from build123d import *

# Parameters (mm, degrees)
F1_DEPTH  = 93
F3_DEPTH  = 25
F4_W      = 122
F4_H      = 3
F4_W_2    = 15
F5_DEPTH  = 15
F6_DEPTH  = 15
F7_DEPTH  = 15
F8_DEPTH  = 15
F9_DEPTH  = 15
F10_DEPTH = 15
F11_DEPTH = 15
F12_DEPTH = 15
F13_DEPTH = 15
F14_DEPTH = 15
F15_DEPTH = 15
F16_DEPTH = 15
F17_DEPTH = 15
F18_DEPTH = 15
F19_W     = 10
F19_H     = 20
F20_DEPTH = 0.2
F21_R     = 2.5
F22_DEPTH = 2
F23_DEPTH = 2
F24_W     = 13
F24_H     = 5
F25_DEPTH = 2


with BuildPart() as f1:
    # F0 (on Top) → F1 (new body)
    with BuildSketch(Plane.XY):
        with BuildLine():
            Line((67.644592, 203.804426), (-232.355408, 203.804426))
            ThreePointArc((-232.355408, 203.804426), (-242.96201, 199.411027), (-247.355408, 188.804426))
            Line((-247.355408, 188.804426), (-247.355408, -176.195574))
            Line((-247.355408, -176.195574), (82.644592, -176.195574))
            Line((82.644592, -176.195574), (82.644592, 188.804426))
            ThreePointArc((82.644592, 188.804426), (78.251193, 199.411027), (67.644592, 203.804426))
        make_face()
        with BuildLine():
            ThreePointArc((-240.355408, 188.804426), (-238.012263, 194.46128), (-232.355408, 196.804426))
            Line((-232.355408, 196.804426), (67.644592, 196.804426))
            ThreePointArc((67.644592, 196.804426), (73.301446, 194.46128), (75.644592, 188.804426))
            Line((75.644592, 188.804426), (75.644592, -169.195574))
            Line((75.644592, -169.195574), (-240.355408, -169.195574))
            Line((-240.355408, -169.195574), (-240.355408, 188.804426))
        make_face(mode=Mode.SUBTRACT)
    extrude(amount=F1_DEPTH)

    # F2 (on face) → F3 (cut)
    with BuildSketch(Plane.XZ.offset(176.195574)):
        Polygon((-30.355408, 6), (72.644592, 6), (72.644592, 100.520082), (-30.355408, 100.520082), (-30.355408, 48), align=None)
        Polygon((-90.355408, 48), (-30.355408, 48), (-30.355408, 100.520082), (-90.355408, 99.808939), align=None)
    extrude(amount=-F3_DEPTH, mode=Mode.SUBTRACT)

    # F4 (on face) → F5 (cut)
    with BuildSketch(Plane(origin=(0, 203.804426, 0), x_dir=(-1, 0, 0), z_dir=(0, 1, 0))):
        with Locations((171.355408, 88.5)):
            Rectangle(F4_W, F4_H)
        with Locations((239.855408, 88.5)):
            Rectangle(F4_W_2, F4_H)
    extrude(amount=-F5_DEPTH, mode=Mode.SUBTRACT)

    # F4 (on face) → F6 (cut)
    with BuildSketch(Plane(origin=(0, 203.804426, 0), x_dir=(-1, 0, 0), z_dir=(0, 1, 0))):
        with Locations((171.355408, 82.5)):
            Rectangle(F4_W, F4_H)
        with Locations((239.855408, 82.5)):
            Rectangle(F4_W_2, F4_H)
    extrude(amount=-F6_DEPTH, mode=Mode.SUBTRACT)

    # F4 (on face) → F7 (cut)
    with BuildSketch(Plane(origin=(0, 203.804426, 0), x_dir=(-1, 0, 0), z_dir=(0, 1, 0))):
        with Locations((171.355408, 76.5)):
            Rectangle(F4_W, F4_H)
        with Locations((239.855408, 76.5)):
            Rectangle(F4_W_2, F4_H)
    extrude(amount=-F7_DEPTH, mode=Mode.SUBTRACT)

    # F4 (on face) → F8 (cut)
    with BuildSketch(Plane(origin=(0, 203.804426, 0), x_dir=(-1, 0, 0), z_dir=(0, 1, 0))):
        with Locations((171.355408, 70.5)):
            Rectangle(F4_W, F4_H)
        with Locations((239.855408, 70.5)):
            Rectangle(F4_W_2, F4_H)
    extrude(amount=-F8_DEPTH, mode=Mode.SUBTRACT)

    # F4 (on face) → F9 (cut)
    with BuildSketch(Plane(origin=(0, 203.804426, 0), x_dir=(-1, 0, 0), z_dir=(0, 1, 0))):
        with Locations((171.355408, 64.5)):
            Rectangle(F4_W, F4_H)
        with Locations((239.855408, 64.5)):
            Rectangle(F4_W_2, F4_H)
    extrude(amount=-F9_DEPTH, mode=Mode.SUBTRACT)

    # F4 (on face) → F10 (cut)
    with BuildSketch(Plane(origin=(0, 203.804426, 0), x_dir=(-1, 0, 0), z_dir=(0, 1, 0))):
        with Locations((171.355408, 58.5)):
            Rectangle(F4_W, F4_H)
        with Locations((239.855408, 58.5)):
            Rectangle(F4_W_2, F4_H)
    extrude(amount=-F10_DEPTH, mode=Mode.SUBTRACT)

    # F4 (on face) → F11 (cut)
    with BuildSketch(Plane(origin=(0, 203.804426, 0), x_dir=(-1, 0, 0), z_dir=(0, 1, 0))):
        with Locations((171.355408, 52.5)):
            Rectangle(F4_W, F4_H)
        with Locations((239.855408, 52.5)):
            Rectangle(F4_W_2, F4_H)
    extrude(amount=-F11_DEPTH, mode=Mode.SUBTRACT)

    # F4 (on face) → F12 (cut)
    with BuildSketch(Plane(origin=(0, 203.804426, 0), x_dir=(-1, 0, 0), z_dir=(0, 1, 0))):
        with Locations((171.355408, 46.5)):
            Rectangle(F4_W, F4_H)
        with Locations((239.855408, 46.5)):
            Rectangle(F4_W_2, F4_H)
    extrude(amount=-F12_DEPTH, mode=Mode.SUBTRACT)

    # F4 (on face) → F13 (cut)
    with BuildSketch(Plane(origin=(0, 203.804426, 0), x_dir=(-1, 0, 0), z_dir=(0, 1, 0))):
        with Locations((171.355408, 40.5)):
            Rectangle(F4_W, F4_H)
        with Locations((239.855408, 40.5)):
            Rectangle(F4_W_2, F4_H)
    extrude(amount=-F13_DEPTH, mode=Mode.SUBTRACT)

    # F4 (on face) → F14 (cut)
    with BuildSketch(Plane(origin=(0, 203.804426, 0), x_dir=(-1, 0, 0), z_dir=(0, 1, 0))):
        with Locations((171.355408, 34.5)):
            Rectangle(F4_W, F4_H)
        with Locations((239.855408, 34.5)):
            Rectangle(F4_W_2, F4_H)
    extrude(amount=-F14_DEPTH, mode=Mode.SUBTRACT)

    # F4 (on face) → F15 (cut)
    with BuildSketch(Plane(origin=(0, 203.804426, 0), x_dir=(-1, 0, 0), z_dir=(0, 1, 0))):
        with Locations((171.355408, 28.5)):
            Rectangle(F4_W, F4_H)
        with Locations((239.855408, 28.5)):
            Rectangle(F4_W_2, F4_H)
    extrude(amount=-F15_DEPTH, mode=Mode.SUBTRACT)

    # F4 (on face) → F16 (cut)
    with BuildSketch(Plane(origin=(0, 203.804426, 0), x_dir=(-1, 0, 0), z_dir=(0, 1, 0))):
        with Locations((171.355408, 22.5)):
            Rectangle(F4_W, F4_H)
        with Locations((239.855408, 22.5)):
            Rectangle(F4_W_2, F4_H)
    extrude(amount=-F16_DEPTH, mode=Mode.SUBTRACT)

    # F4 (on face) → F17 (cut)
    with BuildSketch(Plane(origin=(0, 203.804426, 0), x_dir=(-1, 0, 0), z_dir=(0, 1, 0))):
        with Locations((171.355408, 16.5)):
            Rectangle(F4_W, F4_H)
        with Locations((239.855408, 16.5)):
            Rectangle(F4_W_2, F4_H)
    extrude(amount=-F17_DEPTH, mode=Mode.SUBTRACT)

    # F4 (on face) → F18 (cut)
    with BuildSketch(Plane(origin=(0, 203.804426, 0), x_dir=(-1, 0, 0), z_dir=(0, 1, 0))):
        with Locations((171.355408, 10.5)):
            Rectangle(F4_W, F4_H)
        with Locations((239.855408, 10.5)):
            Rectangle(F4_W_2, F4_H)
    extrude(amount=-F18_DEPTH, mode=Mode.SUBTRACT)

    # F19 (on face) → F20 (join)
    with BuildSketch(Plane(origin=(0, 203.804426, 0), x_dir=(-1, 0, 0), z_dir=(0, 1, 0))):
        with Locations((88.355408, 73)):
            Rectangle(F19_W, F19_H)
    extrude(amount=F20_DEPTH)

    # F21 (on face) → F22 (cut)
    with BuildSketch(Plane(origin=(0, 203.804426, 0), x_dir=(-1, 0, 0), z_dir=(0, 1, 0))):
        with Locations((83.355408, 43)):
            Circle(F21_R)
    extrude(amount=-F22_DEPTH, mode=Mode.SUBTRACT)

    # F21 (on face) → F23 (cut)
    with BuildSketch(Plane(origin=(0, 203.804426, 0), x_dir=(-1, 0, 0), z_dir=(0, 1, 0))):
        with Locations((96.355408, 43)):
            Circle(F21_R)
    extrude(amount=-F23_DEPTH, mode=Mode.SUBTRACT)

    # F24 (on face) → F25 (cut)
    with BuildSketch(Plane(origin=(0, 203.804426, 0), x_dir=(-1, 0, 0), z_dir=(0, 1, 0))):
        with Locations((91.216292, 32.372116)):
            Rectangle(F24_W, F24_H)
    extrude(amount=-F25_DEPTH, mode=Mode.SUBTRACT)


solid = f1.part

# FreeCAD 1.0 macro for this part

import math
import FreeCAD as App
import Part
import Sketcher
from FreeCAD import Vector

doc = App.newDocument("Part")
body = doc.addObject("PartDesign::Body", "Body")

sketch1 = body.newObject("Sketcher::SketchObject", "Sketch")
sketch1.AttachmentSupport = (doc.getObject("XY_Plane"), [""])
sketch1.MapMode = "FlatFace"
sketch1.addGeometry(Part.LineSegment(Vector(68, 204, 0), Vector(-232, 204, 0)), False)
sketch1.addGeometry(Part.ArcOfCircle(Part.Circle(Vector(-232, 189, 0), Vector(0, 0, 1), 15), math.radians(90), math.radians(180)), False)
sketch1.addGeometry(Part.LineSegment(Vector(-247, 189, 0), Vector(-247, -176, 0)), False)
sketch1.addGeometry(Part.LineSegment(Vector(-247, -176, 0), Vector(83, -176, 0)), False)
sketch1.addGeometry(Part.LineSegment(Vector(83, -176, 0), Vector(83, 189, 0)), False)
sketch1.addGeometry(Part.ArcOfCircle(Part.Circle(Vector(68, 189, 0), Vector(0, 0, 1), 15), math.radians(0), math.radians(90)), False)
sketch1.addGeometry(Part.LineSegment(Vector(-240, -169, 0), Vector(-240, 189, 0)), False)
sketch1.addGeometry(Part.ArcOfCircle(Part.Circle(Vector(-232, 189, 0), Vector(0, 0, 1), 8), math.radians(90), math.radians(180)), False)
sketch1.addGeometry(Part.LineSegment(Vector(-232, 197, 0), Vector(68, 197, 0)), False)
sketch1.addGeometry(Part.ArcOfCircle(Part.Circle(Vector(68, 189, 0), Vector(0, 0, 1), 8), math.radians(0), math.radians(90)), False)
sketch1.addGeometry(Part.LineSegment(Vector(76, 189, 0), Vector(76, -169, 0)), False)
sketch1.addGeometry(Part.LineSegment(Vector(76, -169, 0), Vector(-240, -169, 0)), False)
sketch1.addConstraint(Sketcher.Constraint("Tangent", 0, 2, 1, 1))
sketch1.addConstraint(Sketcher.Constraint("Tangent", 1, 2, 2, 1))
sketch1.addConstraint(Sketcher.Constraint("Coincident", 2, 2, 3, 1))
sketch1.addConstraint(Sketcher.Constraint("Coincident", 3, 2, 4, 1))
sketch1.addConstraint(Sketcher.Constraint("Tangent", 4, 2, 5, 1))
sketch1.addConstraint(Sketcher.Constraint("Tangent", 5, 2, 0, 1))
sketch1.addConstraint(Sketcher.Constraint("Tangent", 6, 2, 7, 2))
sketch1.addConstraint(Sketcher.Constraint("Tangent", 7, 1, 8, 1))
sketch1.addConstraint(Sketcher.Constraint("Tangent", 8, 2, 9, 2))
sketch1.addConstraint(Sketcher.Constraint("Tangent", 9, 1, 10, 1))
sketch1.addConstraint(Sketcher.Constraint("Coincident", 10, 2, 11, 1))
sketch1.addConstraint(Sketcher.Constraint("Coincident", 11, 2, 6, 1))
sketch1.addConstraint(Sketcher.Constraint("Horizontal", 0))
sketch1.addConstraint(Sketcher.Constraint("Vertical", 2))
sketch1.addConstraint(Sketcher.Constraint("Horizontal", 3))
sketch1.addConstraint(Sketcher.Constraint("Vertical", 4))
sketch1.addConstraint(Sketcher.Constraint("Vertical", 6))
sketch1.addConstraint(Sketcher.Constraint("Horizontal", 8))
sketch1.addConstraint(Sketcher.Constraint("Vertical", 10))
sketch1.addConstraint(Sketcher.Constraint("Horizontal", 11))
sketch1.addConstraint(Sketcher.Constraint("Coincident", 7, 3, 1, 3))
sketch1.addConstraint(Sketcher.Constraint("Coincident", 9, 3, 5, 3))
sketch1.addConstraint(Sketcher.Constraint("Equal", 1, 5))
sketch1.addConstraint(Sketcher.Constraint("Radius", 1, 15.000001))
sketch1.addConstraint(Sketcher.Constraint("Radius", 7, 7.999999))
sketch1.addConstraint(Sketcher.Constraint("DistanceX", 0, 2, 0, 1, 300.0))
sketch1.addConstraint(Sketcher.Constraint("DistanceY", 2, 2, 2, 1, 365.0))
sketch1.addConstraint(Sketcher.Constraint("DistanceY", 6, 1, 6, 2, 358.0))
sketch1.addConstraint(Sketcher.Constraint("DistanceX", -1, 1, 5, 3, 67.64459))
sketch1.addConstraint(Sketcher.Constraint("DistanceY", -1, 1, 1, 3, 188.804425))
pad1 = body.newObject("PartDesign::Pad", "Pad")
pad1.Profile = sketch1
pad1.Length = 93

sketch2 = body.newObject("Sketcher::SketchObject", "Sketch001")
sketch2.AttachmentSupport = (doc.getObject("XZ_Plane"), [""])
sketch2.MapMode = "FlatFace"
sketch2.AttachmentOffset = App.Placement(Vector(0, 0, 176.195574), App.Rotation())
sketch2.addGeometry(Part.LineSegment(Vector(-30, 6, 0), Vector(73, 6, 0)), False)
sketch2.addGeometry(Part.LineSegment(Vector(73, 6, 0), Vector(73, 101, 0)), False)
sketch2.addGeometry(Part.LineSegment(Vector(73, 101, 0), Vector(-30, 101, 0)), False)
sketch2.addGeometry(Part.LineSegment(Vector(-30, 101, 0), Vector(-90, 100, 0)), False)
sketch2.addGeometry(Part.LineSegment(Vector(-90, 100, 0), Vector(-90, 48, 0)), False)
sketch2.addGeometry(Part.LineSegment(Vector(-90, 48, 0), Vector(-30, 48, 0)), False)
sketch2.addGeometry(Part.LineSegment(Vector(-30, 48, 0), Vector(-30, 6, 0)), False)
sketch2.addConstraint(Sketcher.Constraint("Coincident", 0, 2, 1, 1))
sketch2.addConstraint(Sketcher.Constraint("Coincident", 1, 2, 2, 1))
sketch2.addConstraint(Sketcher.Constraint("Coincident", 2, 2, 3, 1))
sketch2.addConstraint(Sketcher.Constraint("Coincident", 3, 2, 4, 1))
sketch2.addConstraint(Sketcher.Constraint("Coincident", 4, 2, 5, 1))
sketch2.addConstraint(Sketcher.Constraint("Coincident", 5, 2, 6, 1))
sketch2.addConstraint(Sketcher.Constraint("Coincident", 6, 2, 0, 1))
sketch2.addConstraint(Sketcher.Constraint("Horizontal", 0))
sketch2.addConstraint(Sketcher.Constraint("Vertical", 1))
sketch2.addConstraint(Sketcher.Constraint("Horizontal", 2))
sketch2.addConstraint(Sketcher.Constraint("Vertical", 4))
sketch2.addConstraint(Sketcher.Constraint("Horizontal", 5))
sketch2.addConstraint(Sketcher.Constraint("Vertical", 6))
sketch2.addConstraint(Sketcher.Constraint("Vertical", 2, 2, 5, 2))
sketch2.addConstraint(Sketcher.Constraint("DistanceX", 0, 1, 0, 2, 103.0))
sketch2.addConstraint(Sketcher.Constraint("DistanceX", 5, 1, 5, 2, 60.0))
sketch2.addConstraint(Sketcher.Constraint("DistanceY", 6, 2, 6, 1, 42.0))
sketch2.addConstraint(Sketcher.Constraint("DistanceY", -1, 1, 0, 2, 6.0))
sketch2.addConstraint(Sketcher.Constraint("DistanceY", 4, 2, 4, 1, 51.808939))
sketch2.addConstraint(Sketcher.Constraint("DistanceY", 1, 1, 1, 2, 94.520082))
sketch2.addConstraint(Sketcher.Constraint("DistanceX", 2, 2, -1, 1, 30.355408))
pocket1 = body.newObject("PartDesign::Pocket", "Pocket")
pocket1.Profile = sketch2
pocket1.Length = 25

sketch3 = body.newObject("Sketcher::SketchObject", "Sketch002")
sketch3.AttachmentSupport = (doc.getObject("XZ_Plane"), [""])
sketch3.MapMode = "FlatFace"
sketch3.AttachmentOffset = App.Placement(Vector(0, 0, -203.804426), App.Rotation())
sketch3.addGeometry(Part.LineSegment(Vector(-110.4, 90, 0), Vector(-110.4, 87, 0)), False)
sketch3.addGeometry(Part.LineSegment(Vector(-110.4, 87, 0), Vector(-247.4, 87, 0)), False)
sketch3.addGeometry(Part.LineSegment(Vector(-247.4, 87, 0), Vector(-247.4, 90, 0)), False)
sketch3.addGeometry(Part.LineSegment(Vector(-247.4, 90, 0), Vector(-110.4, 90, 0)), False)
sketch3.addConstraint(Sketcher.Constraint("Coincident", 0, 2, 1, 1))
sketch3.addConstraint(Sketcher.Constraint("Coincident", 1, 2, 2, 1))
sketch3.addConstraint(Sketcher.Constraint("Coincident", 2, 2, 3, 1))
sketch3.addConstraint(Sketcher.Constraint("Coincident", 3, 2, 0, 1))
sketch3.addConstraint(Sketcher.Constraint("Vertical", 0))
sketch3.addConstraint(Sketcher.Constraint("Horizontal", 1))
sketch3.addConstraint(Sketcher.Constraint("Vertical", 2))
sketch3.addConstraint(Sketcher.Constraint("Horizontal", 3))
sketch3.addConstraint(Sketcher.Constraint("DistanceX", 1, 2, 1, 1, 137.0))
sketch3.addConstraint(Sketcher.Constraint("DistanceY", 0, 2, 0, 1, 3.0))
sketch3.addConstraint(Sketcher.Constraint("DistanceY", -1, 1, 0, 2, 87.0))
sketch3.addConstraint(Sketcher.Constraint("DistanceX", 1, 2, -1, 1, 247.355408))
pocket2 = body.newObject("PartDesign::Pocket", "Pocket001")
pocket2.Profile = sketch3
pocket2.Length = 15
pocket2.Reversed = True

sketch4 = body.newObject("Sketcher::SketchObject", "Sketch003")
sketch4.AttachmentSupport = (doc.getObject("XZ_Plane"), [""])
sketch4.MapMode = "FlatFace"
sketch4.AttachmentOffset = App.Placement(Vector(0, 0, -203.804426), App.Rotation())
sketch4.addGeometry(Part.LineSegment(Vector(-110.4, 84, 0), Vector(-110.4, 81, 0)), False)
sketch4.addGeometry(Part.LineSegment(Vector(-110.4, 81, 0), Vector(-247.4, 81, 0)), False)
sketch4.addGeometry(Part.LineSegment(Vector(-247.4, 81, 0), Vector(-247.4, 84, 0)), False)
sketch4.addGeometry(Part.LineSegment(Vector(-247.4, 84, 0), Vector(-110.4, 84, 0)), False)
sketch4.addConstraint(Sketcher.Constraint("Coincident", 0, 2, 1, 1))
sketch4.addConstraint(Sketcher.Constraint("Coincident", 1, 2, 2, 1))
sketch4.addConstraint(Sketcher.Constraint("Coincident", 2, 2, 3, 1))
sketch4.addConstraint(Sketcher.Constraint("Coincident", 3, 2, 0, 1))
sketch4.addConstraint(Sketcher.Constraint("Vertical", 0))
sketch4.addConstraint(Sketcher.Constraint("Horizontal", 1))
sketch4.addConstraint(Sketcher.Constraint("Vertical", 2))
sketch4.addConstraint(Sketcher.Constraint("Horizontal", 3))
sketch4.addConstraint(Sketcher.Constraint("DistanceX", 1, 2, 1, 1, 137.0))
sketch4.addConstraint(Sketcher.Constraint("DistanceY", 0, 2, 0, 1, 3.0))
sketch4.addConstraint(Sketcher.Constraint("DistanceY", -1, 1, 0, 2, 81.0))
sketch4.addConstraint(Sketcher.Constraint("DistanceX", 1, 2, -1, 1, 247.355408))
pocket3 = body.newObject("PartDesign::Pocket", "Pocket002")
pocket3.Profile = sketch4
pocket3.Length = 15
pocket3.Reversed = True

sketch5 = body.newObject("Sketcher::SketchObject", "Sketch004")
sketch5.AttachmentSupport = (doc.getObject("XZ_Plane"), [""])
sketch5.MapMode = "FlatFace"
sketch5.AttachmentOffset = App.Placement(Vector(0, 0, -203.804426), App.Rotation())
sketch5.addGeometry(Part.LineSegment(Vector(-110.4, 78, 0), Vector(-110.4, 75, 0)), False)
sketch5.addGeometry(Part.LineSegment(Vector(-110.4, 75, 0), Vector(-247.4, 75, 0)), False)
sketch5.addGeometry(Part.LineSegment(Vector(-247.4, 75, 0), Vector(-247.4, 78, 0)), False)
sketch5.addGeometry(Part.LineSegment(Vector(-247.4, 78, 0), Vector(-110.4, 78, 0)), False)
sketch5.addConstraint(Sketcher.Constraint("Coincident", 0, 2, 1, 1))
sketch5.addConstraint(Sketcher.Constraint("Coincident", 1, 2, 2, 1))
sketch5.addConstraint(Sketcher.Constraint("Coincident", 2, 2, 3, 1))
sketch5.addConstraint(Sketcher.Constraint("Coincident", 3, 2, 0, 1))
sketch5.addConstraint(Sketcher.Constraint("Vertical", 0))
sketch5.addConstraint(Sketcher.Constraint("Horizontal", 1))
sketch5.addConstraint(Sketcher.Constraint("Vertical", 2))
sketch5.addConstraint(Sketcher.Constraint("Horizontal", 3))
sketch5.addConstraint(Sketcher.Constraint("DistanceX", 1, 2, 1, 1, 137.0))
sketch5.addConstraint(Sketcher.Constraint("DistanceY", 0, 2, 0, 1, 3.0))
sketch5.addConstraint(Sketcher.Constraint("DistanceY", -1, 1, 0, 2, 75.0))
sketch5.addConstraint(Sketcher.Constraint("DistanceX", 1, 2, -1, 1, 247.355408))
pocket4 = body.newObject("PartDesign::Pocket", "Pocket003")
pocket4.Profile = sketch5
pocket4.Length = 15
pocket4.Reversed = True

sketch6 = body.newObject("Sketcher::SketchObject", "Sketch005")
sketch6.AttachmentSupport = (doc.getObject("XZ_Plane"), [""])
sketch6.MapMode = "FlatFace"
sketch6.AttachmentOffset = App.Placement(Vector(0, 0, -203.804426), App.Rotation())
sketch6.addGeometry(Part.LineSegment(Vector(-110.4, 72, 0), Vector(-110.4, 69, 0)), False)
sketch6.addGeometry(Part.LineSegment(Vector(-110.4, 69, 0), Vector(-247.4, 69, 0)), False)
sketch6.addGeometry(Part.LineSegment(Vector(-247.4, 69, 0), Vector(-247.4, 72, 0)), False)
sketch6.addGeometry(Part.LineSegment(Vector(-247.4, 72, 0), Vector(-110.4, 72, 0)), False)
sketch6.addConstraint(Sketcher.Constraint("Coincident", 0, 2, 1, 1))
sketch6.addConstraint(Sketcher.Constraint("Coincident", 1, 2, 2, 1))
sketch6.addConstraint(Sketcher.Constraint("Coincident", 2, 2, 3, 1))
sketch6.addConstraint(Sketcher.Constraint("Coincident", 3, 2, 0, 1))
sketch6.addConstraint(Sketcher.Constraint("Vertical", 0))
sketch6.addConstraint(Sketcher.Constraint("Horizontal", 1))
sketch6.addConstraint(Sketcher.Constraint("Vertical", 2))
sketch6.addConstraint(Sketcher.Constraint("Horizontal", 3))
sketch6.addConstraint(Sketcher.Constraint("DistanceX", 1, 2, 1, 1, 137.0))
sketch6.addConstraint(Sketcher.Constraint("DistanceY", 0, 2, 0, 1, 3.0))
sketch6.addConstraint(Sketcher.Constraint("DistanceY", -1, 1, 0, 2, 69.0))
sketch6.addConstraint(Sketcher.Constraint("DistanceX", 1, 2, -1, 1, 247.355408))
pocket5 = body.newObject("PartDesign::Pocket", "Pocket004")
pocket5.Profile = sketch6
pocket5.Length = 15
pocket5.Reversed = True

sketch7 = body.newObject("Sketcher::SketchObject", "Sketch006")
sketch7.AttachmentSupport = (doc.getObject("XZ_Plane"), [""])
sketch7.MapMode = "FlatFace"
sketch7.AttachmentOffset = App.Placement(Vector(0, 0, -203.804426), App.Rotation())
sketch7.addGeometry(Part.LineSegment(Vector(-110.4, 66, 0), Vector(-110.4, 63, 0)), False)
sketch7.addGeometry(Part.LineSegment(Vector(-110.4, 63, 0), Vector(-247.4, 63, 0)), False)
sketch7.addGeometry(Part.LineSegment(Vector(-247.4, 63, 0), Vector(-247.4, 66, 0)), False)
sketch7.addGeometry(Part.LineSegment(Vector(-247.4, 66, 0), Vector(-110.4, 66, 0)), False)
sketch7.addConstraint(Sketcher.Constraint("Coincident", 0, 2, 1, 1))
sketch7.addConstraint(Sketcher.Constraint("Coincident", 1, 2, 2, 1))
sketch7.addConstraint(Sketcher.Constraint("Coincident", 2, 2, 3, 1))
sketch7.addConstraint(Sketcher.Constraint("Coincident", 3, 2, 0, 1))
sketch7.addConstraint(Sketcher.Constraint("Vertical", 0))
sketch7.addConstraint(Sketcher.Constraint("Horizontal", 1))
sketch7.addConstraint(Sketcher.Constraint("Vertical", 2))
sketch7.addConstraint(Sketcher.Constraint("Horizontal", 3))
sketch7.addConstraint(Sketcher.Constraint("DistanceX", 1, 2, 1, 1, 137.0))
sketch7.addConstraint(Sketcher.Constraint("DistanceY", 0, 2, 0, 1, 3.0))
sketch7.addConstraint(Sketcher.Constraint("DistanceY", -1, 1, 0, 2, 63.0))
sketch7.addConstraint(Sketcher.Constraint("DistanceX", 1, 2, -1, 1, 247.355408))
pocket6 = body.newObject("PartDesign::Pocket", "Pocket005")
pocket6.Profile = sketch7
pocket6.Length = 15
pocket6.Reversed = True

sketch8 = body.newObject("Sketcher::SketchObject", "Sketch007")
sketch8.AttachmentSupport = (doc.getObject("XZ_Plane"), [""])
sketch8.MapMode = "FlatFace"
sketch8.AttachmentOffset = App.Placement(Vector(0, 0, -203.804426), App.Rotation())
sketch8.addGeometry(Part.LineSegment(Vector(-110.4, 60, 0), Vector(-110.4, 57, 0)), False)
sketch8.addGeometry(Part.LineSegment(Vector(-110.4, 57, 0), Vector(-247.4, 57, 0)), False)
sketch8.addGeometry(Part.LineSegment(Vector(-247.4, 57, 0), Vector(-247.4, 60, 0)), False)
sketch8.addGeometry(Part.LineSegment(Vector(-247.4, 60, 0), Vector(-110.4, 60, 0)), False)
sketch8.addConstraint(Sketcher.Constraint("Coincident", 0, 2, 1, 1))
sketch8.addConstraint(Sketcher.Constraint("Coincident", 1, 2, 2, 1))
sketch8.addConstraint(Sketcher.Constraint("Coincident", 2, 2, 3, 1))
sketch8.addConstraint(Sketcher.Constraint("Coincident", 3, 2, 0, 1))
sketch8.addConstraint(Sketcher.Constraint("Vertical", 0))
sketch8.addConstraint(Sketcher.Constraint("Horizontal", 1))
sketch8.addConstraint(Sketcher.Constraint("Vertical", 2))
sketch8.addConstraint(Sketcher.Constraint("Horizontal", 3))
sketch8.addConstraint(Sketcher.Constraint("DistanceX", 1, 2, 1, 1, 137.0))
sketch8.addConstraint(Sketcher.Constraint("DistanceY", 0, 2, 0, 1, 3.0))
sketch8.addConstraint(Sketcher.Constraint("DistanceY", -1, 1, 0, 2, 57.0))
sketch8.addConstraint(Sketcher.Constraint("DistanceX", 1, 2, -1, 1, 247.355408))
pocket7 = body.newObject("PartDesign::Pocket", "Pocket006")
pocket7.Profile = sketch8
pocket7.Length = 15
pocket7.Reversed = True

sketch9 = body.newObject("Sketcher::SketchObject", "Sketch008")
sketch9.AttachmentSupport = (doc.getObject("XZ_Plane"), [""])
sketch9.MapMode = "FlatFace"
sketch9.AttachmentOffset = App.Placement(Vector(0, 0, -203.804426), App.Rotation())
sketch9.addGeometry(Part.LineSegment(Vector(-110.4, 54, 0), Vector(-110.4, 51, 0)), False)
sketch9.addGeometry(Part.LineSegment(Vector(-110.4, 51, 0), Vector(-247.4, 51, 0)), False)
sketch9.addGeometry(Part.LineSegment(Vector(-247.4, 51, 0), Vector(-247.4, 54, 0)), False)
sketch9.addGeometry(Part.LineSegment(Vector(-247.4, 54, 0), Vector(-110.4, 54, 0)), False)
sketch9.addConstraint(Sketcher.Constraint("Coincident", 0, 2, 1, 1))
sketch9.addConstraint(Sketcher.Constraint("Coincident", 1, 2, 2, 1))
sketch9.addConstraint(Sketcher.Constraint("Coincident", 2, 2, 3, 1))
sketch9.addConstraint(Sketcher.Constraint("Coincident", 3, 2, 0, 1))
sketch9.addConstraint(Sketcher.Constraint("Vertical", 0))
sketch9.addConstraint(Sketcher.Constraint("Horizontal", 1))
sketch9.addConstraint(Sketcher.Constraint("Vertical", 2))
sketch9.addConstraint(Sketcher.Constraint("Horizontal", 3))
sketch9.addConstraint(Sketcher.Constraint("DistanceX", 1, 2, 1, 1, 137.0))
sketch9.addConstraint(Sketcher.Constraint("DistanceY", 0, 2, 0, 1, 3.0))
sketch9.addConstraint(Sketcher.Constraint("DistanceY", -1, 1, 0, 2, 51.0))
sketch9.addConstraint(Sketcher.Constraint("DistanceX", 1, 2, -1, 1, 247.355408))
pocket8 = body.newObject("PartDesign::Pocket", "Pocket007")
pocket8.Profile = sketch9
pocket8.Length = 15
pocket8.Reversed = True

sketch10 = body.newObject("Sketcher::SketchObject", "Sketch009")
sketch10.AttachmentSupport = (doc.getObject("XZ_Plane"), [""])
sketch10.MapMode = "FlatFace"
sketch10.AttachmentOffset = App.Placement(Vector(0, 0, -203.804426), App.Rotation())
sketch10.addGeometry(Part.LineSegment(Vector(-110.4, 48, 0), Vector(-110.4, 45, 0)), False)
sketch10.addGeometry(Part.LineSegment(Vector(-110.4, 45, 0), Vector(-247.4, 45, 0)), False)
sketch10.addGeometry(Part.LineSegment(Vector(-247.4, 45, 0), Vector(-247.4, 48, 0)), False)
sketch10.addGeometry(Part.LineSegment(Vector(-247.4, 48, 0), Vector(-110.4, 48, 0)), False)
sketch10.addConstraint(Sketcher.Constraint("Coincident", 0, 2, 1, 1))
sketch10.addConstraint(Sketcher.Constraint("Coincident", 1, 2, 2, 1))
sketch10.addConstraint(Sketcher.Constraint("Coincident", 2, 2, 3, 1))
sketch10.addConstraint(Sketcher.Constraint("Coincident", 3, 2, 0, 1))
sketch10.addConstraint(Sketcher.Constraint("Vertical", 0))
sketch10.addConstraint(Sketcher.Constraint("Horizontal", 1))
sketch10.addConstraint(Sketcher.Constraint("Vertical", 2))
sketch10.addConstraint(Sketcher.Constraint("Horizontal", 3))
sketch10.addConstraint(Sketcher.Constraint("DistanceX", 1, 2, 1, 1, 137.0))
sketch10.addConstraint(Sketcher.Constraint("DistanceY", 0, 2, 0, 1, 3.0))
sketch10.addConstraint(Sketcher.Constraint("DistanceY", -1, 1, 0, 2, 45.0))
sketch10.addConstraint(Sketcher.Constraint("DistanceX", 1, 2, -1, 1, 247.355408))
pocket9 = body.newObject("PartDesign::Pocket", "Pocket008")
pocket9.Profile = sketch10
pocket9.Length = 15
pocket9.Reversed = True

sketch11 = body.newObject("Sketcher::SketchObject", "Sketch010")
sketch11.AttachmentSupport = (doc.getObject("XZ_Plane"), [""])
sketch11.MapMode = "FlatFace"
sketch11.AttachmentOffset = App.Placement(Vector(0, 0, -203.804426), App.Rotation())
sketch11.addGeometry(Part.LineSegment(Vector(-110.4, 42, 0), Vector(-110.4, 39, 0)), False)
sketch11.addGeometry(Part.LineSegment(Vector(-110.4, 39, 0), Vector(-247.4, 39, 0)), False)
sketch11.addGeometry(Part.LineSegment(Vector(-247.4, 39, 0), Vector(-247.4, 42, 0)), False)
sketch11.addGeometry(Part.LineSegment(Vector(-247.4, 42, 0), Vector(-110.4, 42, 0)), False)
sketch11.addConstraint(Sketcher.Constraint("Coincident", 0, 2, 1, 1))
sketch11.addConstraint(Sketcher.Constraint("Coincident", 1, 2, 2, 1))
sketch11.addConstraint(Sketcher.Constraint("Coincident", 2, 2, 3, 1))
sketch11.addConstraint(Sketcher.Constraint("Coincident", 3, 2, 0, 1))
sketch11.addConstraint(Sketcher.Constraint("Vertical", 0))
sketch11.addConstraint(Sketcher.Constraint("Horizontal", 1))
sketch11.addConstraint(Sketcher.Constraint("Vertical", 2))
sketch11.addConstraint(Sketcher.Constraint("Horizontal", 3))
sketch11.addConstraint(Sketcher.Constraint("DistanceX", 1, 2, 1, 1, 137.0))
sketch11.addConstraint(Sketcher.Constraint("DistanceY", 0, 2, 0, 1, 3.0))
sketch11.addConstraint(Sketcher.Constraint("DistanceY", -1, 1, 0, 2, 39.0))
sketch11.addConstraint(Sketcher.Constraint("DistanceX", 1, 2, -1, 1, 247.355408))
pocket10 = body.newObject("PartDesign::Pocket", "Pocket009")
pocket10.Profile = sketch11
pocket10.Length = 15
pocket10.Reversed = True

sketch12 = body.newObject("Sketcher::SketchObject", "Sketch011")
sketch12.AttachmentSupport = (doc.getObject("XZ_Plane"), [""])
sketch12.MapMode = "FlatFace"
sketch12.AttachmentOffset = App.Placement(Vector(0, 0, -203.804426), App.Rotation())
sketch12.addGeometry(Part.LineSegment(Vector(-110.4, 36, 0), Vector(-110.4, 33, 0)), False)
sketch12.addGeometry(Part.LineSegment(Vector(-110.4, 33, 0), Vector(-247.4, 33, 0)), False)
sketch12.addGeometry(Part.LineSegment(Vector(-247.4, 33, 0), Vector(-247.4, 36, 0)), False)
sketch12.addGeometry(Part.LineSegment(Vector(-247.4, 36, 0), Vector(-110.4, 36, 0)), False)
sketch12.addConstraint(Sketcher.Constraint("Coincident", 0, 2, 1, 1))
sketch12.addConstraint(Sketcher.Constraint("Coincident", 1, 2, 2, 1))
sketch12.addConstraint(Sketcher.Constraint("Coincident", 2, 2, 3, 1))
sketch12.addConstraint(Sketcher.Constraint("Coincident", 3, 2, 0, 1))
sketch12.addConstraint(Sketcher.Constraint("Vertical", 0))
sketch12.addConstraint(Sketcher.Constraint("Horizontal", 1))
sketch12.addConstraint(Sketcher.Constraint("Vertical", 2))
sketch12.addConstraint(Sketcher.Constraint("Horizontal", 3))
sketch12.addConstraint(Sketcher.Constraint("DistanceX", 1, 2, 1, 1, 137.0))
sketch12.addConstraint(Sketcher.Constraint("DistanceY", 0, 2, 0, 1, 3.0))
sketch12.addConstraint(Sketcher.Constraint("DistanceY", -1, 1, 0, 2, 33.0))
sketch12.addConstraint(Sketcher.Constraint("DistanceX", 1, 2, -1, 1, 247.355408))
pocket11 = body.newObject("PartDesign::Pocket", "Pocket010")
pocket11.Profile = sketch12
pocket11.Length = 15
pocket11.Reversed = True

sketch13 = body.newObject("Sketcher::SketchObject", "Sketch012")
sketch13.AttachmentSupport = (doc.getObject("XZ_Plane"), [""])
sketch13.MapMode = "FlatFace"
sketch13.AttachmentOffset = App.Placement(Vector(0, 0, -203.804426), App.Rotation())
sketch13.addGeometry(Part.LineSegment(Vector(-110.4, 30, 0), Vector(-110.4, 27, 0)), False)
sketch13.addGeometry(Part.LineSegment(Vector(-110.4, 27, 0), Vector(-247.4, 27, 0)), False)
sketch13.addGeometry(Part.LineSegment(Vector(-247.4, 27, 0), Vector(-247.4, 30, 0)), False)
sketch13.addGeometry(Part.LineSegment(Vector(-247.4, 30, 0), Vector(-110.4, 30, 0)), False)
sketch13.addConstraint(Sketcher.Constraint("Coincident", 0, 2, 1, 1))
sketch13.addConstraint(Sketcher.Constraint("Coincident", 1, 2, 2, 1))
sketch13.addConstraint(Sketcher.Constraint("Coincident", 2, 2, 3, 1))
sketch13.addConstraint(Sketcher.Constraint("Coincident", 3, 2, 0, 1))
sketch13.addConstraint(Sketcher.Constraint("Vertical", 0))
sketch13.addConstraint(Sketcher.Constraint("Horizontal", 1))
sketch13.addConstraint(Sketcher.Constraint("Vertical", 2))
sketch13.addConstraint(Sketcher.Constraint("Horizontal", 3))
sketch13.addConstraint(Sketcher.Constraint("DistanceX", 1, 2, 1, 1, 137.0))
sketch13.addConstraint(Sketcher.Constraint("DistanceY", 0, 2, 0, 1, 3.0))
sketch13.addConstraint(Sketcher.Constraint("DistanceY", -1, 1, 0, 2, 27.0))
sketch13.addConstraint(Sketcher.Constraint("DistanceX", 1, 2, -1, 1, 247.355408))
pocket12 = body.newObject("PartDesign::Pocket", "Pocket011")
pocket12.Profile = sketch13
pocket12.Length = 15
pocket12.Reversed = True

sketch14 = body.newObject("Sketcher::SketchObject", "Sketch013")
sketch14.AttachmentSupport = (doc.getObject("XZ_Plane"), [""])
sketch14.MapMode = "FlatFace"
sketch14.AttachmentOffset = App.Placement(Vector(0, 0, -203.804426), App.Rotation())
sketch14.addGeometry(Part.LineSegment(Vector(-110.4, 24, 0), Vector(-110.4, 21, 0)), False)
sketch14.addGeometry(Part.LineSegment(Vector(-110.4, 21, 0), Vector(-247.4, 21, 0)), False)
sketch14.addGeometry(Part.LineSegment(Vector(-247.4, 21, 0), Vector(-247.4, 24, 0)), False)
sketch14.addGeometry(Part.LineSegment(Vector(-247.4, 24, 0), Vector(-110.4, 24, 0)), False)
sketch14.addConstraint(Sketcher.Constraint("Coincident", 0, 2, 1, 1))
sketch14.addConstraint(Sketcher.Constraint("Coincident", 1, 2, 2, 1))
sketch14.addConstraint(Sketcher.Constraint("Coincident", 2, 2, 3, 1))
sketch14.addConstraint(Sketcher.Constraint("Coincident", 3, 2, 0, 1))
sketch14.addConstraint(Sketcher.Constraint("Vertical", 0))
sketch14.addConstraint(Sketcher.Constraint("Horizontal", 1))
sketch14.addConstraint(Sketcher.Constraint("Vertical", 2))
sketch14.addConstraint(Sketcher.Constraint("Horizontal", 3))
sketch14.addConstraint(Sketcher.Constraint("DistanceX", 1, 2, 1, 1, 137.0))
sketch14.addConstraint(Sketcher.Constraint("DistanceY", 0, 2, 0, 1, 3.0))
sketch14.addConstraint(Sketcher.Constraint("DistanceY", -1, 1, 0, 2, 21.0))
sketch14.addConstraint(Sketcher.Constraint("DistanceX", 1, 2, -1, 1, 247.355408))
pocket13 = body.newObject("PartDesign::Pocket", "Pocket012")
pocket13.Profile = sketch14
pocket13.Length = 15
pocket13.Reversed = True

sketch15 = body.newObject("Sketcher::SketchObject", "Sketch014")
sketch15.AttachmentSupport = (doc.getObject("XZ_Plane"), [""])
sketch15.MapMode = "FlatFace"
sketch15.AttachmentOffset = App.Placement(Vector(0, 0, -203.804426), App.Rotation())
sketch15.addGeometry(Part.LineSegment(Vector(-110.4, 18, 0), Vector(-110.4, 15, 0)), False)
sketch15.addGeometry(Part.LineSegment(Vector(-110.4, 15, 0), Vector(-247.4, 15, 0)), False)
sketch15.addGeometry(Part.LineSegment(Vector(-247.4, 15, 0), Vector(-247.4, 18, 0)), False)
sketch15.addGeometry(Part.LineSegment(Vector(-247.4, 18, 0), Vector(-110.4, 18, 0)), False)
sketch15.addConstraint(Sketcher.Constraint("Coincident", 0, 2, 1, 1))
sketch15.addConstraint(Sketcher.Constraint("Coincident", 1, 2, 2, 1))
sketch15.addConstraint(Sketcher.Constraint("Coincident", 2, 2, 3, 1))
sketch15.addConstraint(Sketcher.Constraint("Coincident", 3, 2, 0, 1))
sketch15.addConstraint(Sketcher.Constraint("Vertical", 0))
sketch15.addConstraint(Sketcher.Constraint("Horizontal", 1))
sketch15.addConstraint(Sketcher.Constraint("Vertical", 2))
sketch15.addConstraint(Sketcher.Constraint("Horizontal", 3))
sketch15.addConstraint(Sketcher.Constraint("DistanceX", 1, 2, 1, 1, 137.0))
sketch15.addConstraint(Sketcher.Constraint("DistanceY", 0, 2, 0, 1, 3.0))
sketch15.addConstraint(Sketcher.Constraint("DistanceY", -1, 1, 0, 2, 15.0))
sketch15.addConstraint(Sketcher.Constraint("DistanceX", 1, 2, -1, 1, 247.355408))
pocket14 = body.newObject("PartDesign::Pocket", "Pocket013")
pocket14.Profile = sketch15
pocket14.Length = 15
pocket14.Reversed = True

sketch16 = body.newObject("Sketcher::SketchObject", "Sketch015")
sketch16.AttachmentSupport = (doc.getObject("XZ_Plane"), [""])
sketch16.MapMode = "FlatFace"
sketch16.AttachmentOffset = App.Placement(Vector(0, 0, -203.804426), App.Rotation())
sketch16.addGeometry(Part.LineSegment(Vector(-110.4, 12, 0), Vector(-110.4, 9, 0)), False)
sketch16.addGeometry(Part.LineSegment(Vector(-110.4, 9, 0), Vector(-247.4, 9, 0)), False)
sketch16.addGeometry(Part.LineSegment(Vector(-247.4, 9, 0), Vector(-247.4, 12, 0)), False)
sketch16.addGeometry(Part.LineSegment(Vector(-247.4, 12, 0), Vector(-110.4, 12, 0)), False)
sketch16.addConstraint(Sketcher.Constraint("Coincident", 0, 2, 1, 1))
sketch16.addConstraint(Sketcher.Constraint("Coincident", 1, 2, 2, 1))
sketch16.addConstraint(Sketcher.Constraint("Coincident", 2, 2, 3, 1))
sketch16.addConstraint(Sketcher.Constraint("Coincident", 3, 2, 0, 1))
sketch16.addConstraint(Sketcher.Constraint("Vertical", 0))
sketch16.addConstraint(Sketcher.Constraint("Horizontal", 1))
sketch16.addConstraint(Sketcher.Constraint("Vertical", 2))
sketch16.addConstraint(Sketcher.Constraint("Horizontal", 3))
sketch16.addConstraint(Sketcher.Constraint("DistanceX", 1, 2, 1, 1, 137.0))
sketch16.addConstraint(Sketcher.Constraint("DistanceY", 0, 2, 0, 1, 3.0))
sketch16.addConstraint(Sketcher.Constraint("DistanceY", -1, 1, 0, 2, 9.0))
sketch16.addConstraint(Sketcher.Constraint("DistanceX", 1, 2, -1, 1, 247.355408))
pocket15 = body.newObject("PartDesign::Pocket", "Pocket014")
pocket15.Profile = sketch16
pocket15.Length = 15
pocket15.Reversed = True

sketch17 = body.newObject("Sketcher::SketchObject", "Sketch016")
sketch17.AttachmentSupport = (doc.getObject("XZ_Plane"), [""])
sketch17.MapMode = "FlatFace"
sketch17.AttachmentOffset = App.Placement(Vector(0, 0, -203.804426), App.Rotation())
sketch17.addGeometry(Part.LineSegment(Vector(-83, 83, 0), Vector(-83, 63, 0)), False)
sketch17.addGeometry(Part.LineSegment(Vector(-83, 63, 0), Vector(-93, 63, 0)), False)
sketch17.addGeometry(Part.LineSegment(Vector(-93, 63, 0), Vector(-93, 83, 0)), False)
sketch17.addGeometry(Part.LineSegment(Vector(-93, 83, 0), Vector(-83, 83, 0)), False)
sketch17.addConstraint(Sketcher.Constraint("Coincident", 0, 2, 1, 1))
sketch17.addConstraint(Sketcher.Constraint("Coincident", 1, 2, 2, 1))
sketch17.addConstraint(Sketcher.Constraint("Coincident", 2, 2, 3, 1))
sketch17.addConstraint(Sketcher.Constraint("Coincident", 3, 2, 0, 1))
sketch17.addConstraint(Sketcher.Constraint("Vertical", 0))
sketch17.addConstraint(Sketcher.Constraint("Horizontal", 1))
sketch17.addConstraint(Sketcher.Constraint("Vertical", 2))
sketch17.addConstraint(Sketcher.Constraint("Horizontal", 3))
sketch17.addConstraint(Sketcher.Constraint("DistanceX", 1, 2, 1, 1, 10.0))
sketch17.addConstraint(Sketcher.Constraint("DistanceY", 0, 2, 0, 1, 20.0))
sketch17.addConstraint(Sketcher.Constraint("DistanceY", -1, 1, 0, 2, 63.0))
sketch17.addConstraint(Sketcher.Constraint("DistanceX", 0, 2, -1, 1, 83.355408))
pad2 = body.newObject("PartDesign::Pad", "Pad001")
pad2.Profile = sketch17
pad2.Length = 0.2
pad2.Reversed = True

sketch18 = body.newObject("Sketcher::SketchObject", "Sketch017")
sketch18.AttachmentSupport = (doc.getObject("XZ_Plane"), [""])
sketch18.MapMode = "FlatFace"
sketch18.AttachmentOffset = App.Placement(Vector(0, 0, -203.804426), App.Rotation())
sketch18.addGeometry(Part.Circle(Vector(-83.4, 43, 0), Vector(0, 0, 1), 2.5), False)
sketch18.addConstraint(Sketcher.Constraint("Diameter", 0, 5.0))
sketch18.addConstraint(Sketcher.Constraint("DistanceY", -1, 1, 0, 3, 43.0))
sketch18.addConstraint(Sketcher.Constraint("DistanceX", 0, 3, -1, 1, 83.355408))
pocket16 = body.newObject("PartDesign::Pocket", "Pocket015")
pocket16.Profile = sketch18
pocket16.Length = 2
pocket16.Reversed = True

sketch19 = body.newObject("Sketcher::SketchObject", "Sketch018")
sketch19.AttachmentSupport = (doc.getObject("XZ_Plane"), [""])
sketch19.MapMode = "FlatFace"
sketch19.AttachmentOffset = App.Placement(Vector(0, 0, -203.804426), App.Rotation())
sketch19.addGeometry(Part.Circle(Vector(-96.4, 43, 0), Vector(0, 0, 1), 2.5), False)
sketch19.addConstraint(Sketcher.Constraint("Diameter", 0, 5.0))
sketch19.addConstraint(Sketcher.Constraint("DistanceY", -1, 1, 0, 3, 43.0))
sketch19.addConstraint(Sketcher.Constraint("DistanceX", 0, 3, -1, 1, 96.355408))
pocket17 = body.newObject("PartDesign::Pocket", "Pocket016")
pocket17.Profile = sketch19
pocket17.Length = 2
pocket17.Reversed = True

sketch20 = body.newObject("Sketcher::SketchObject", "Sketch019")
sketch20.AttachmentSupport = (doc.getObject("XZ_Plane"), [""])
sketch20.MapMode = "FlatFace"
sketch20.AttachmentOffset = App.Placement(Vector(0, 0, -203.804426), App.Rotation())
sketch20.addGeometry(Part.LineSegment(Vector(-85, 35, 0), Vector(-85, 30, 0)), False)
sketch20.addGeometry(Part.LineSegment(Vector(-85, 30, 0), Vector(-98, 30, 0)), False)
sketch20.addGeometry(Part.LineSegment(Vector(-98, 30, 0), Vector(-98, 35, 0)), False)
sketch20.addGeometry(Part.LineSegment(Vector(-98, 35, 0), Vector(-85, 35, 0)), False)
sketch20.addConstraint(Sketcher.Constraint("Coincident", 0, 2, 1, 1))
sketch20.addConstraint(Sketcher.Constraint("Coincident", 1, 2, 2, 1))
sketch20.addConstraint(Sketcher.Constraint("Coincident", 2, 2, 3, 1))
sketch20.addConstraint(Sketcher.Constraint("Coincident", 3, 2, 0, 1))
sketch20.addConstraint(Sketcher.Constraint("Vertical", 0))
sketch20.addConstraint(Sketcher.Constraint("Horizontal", 1))
sketch20.addConstraint(Sketcher.Constraint("Vertical", 2))
sketch20.addConstraint(Sketcher.Constraint("Horizontal", 3))
sketch20.addConstraint(Sketcher.Constraint("DistanceX", 1, 2, 1, 1, 13.0))
sketch20.addConstraint(Sketcher.Constraint("DistanceY", 0, 2, 0, 1, 5.0))
sketch20.addConstraint(Sketcher.Constraint("DistanceX", 0, 2, -1, 1, 84.716292))
sketch20.addConstraint(Sketcher.Constraint("DistanceY", -1, 1, 0, 2, 29.872116))
pocket18 = body.newObject("PartDesign::Pocket", "Pocket017")
pocket18.Profile = sketch20
pocket18.Length = 2
pocket18.Reversed = True

doc.recompute()
